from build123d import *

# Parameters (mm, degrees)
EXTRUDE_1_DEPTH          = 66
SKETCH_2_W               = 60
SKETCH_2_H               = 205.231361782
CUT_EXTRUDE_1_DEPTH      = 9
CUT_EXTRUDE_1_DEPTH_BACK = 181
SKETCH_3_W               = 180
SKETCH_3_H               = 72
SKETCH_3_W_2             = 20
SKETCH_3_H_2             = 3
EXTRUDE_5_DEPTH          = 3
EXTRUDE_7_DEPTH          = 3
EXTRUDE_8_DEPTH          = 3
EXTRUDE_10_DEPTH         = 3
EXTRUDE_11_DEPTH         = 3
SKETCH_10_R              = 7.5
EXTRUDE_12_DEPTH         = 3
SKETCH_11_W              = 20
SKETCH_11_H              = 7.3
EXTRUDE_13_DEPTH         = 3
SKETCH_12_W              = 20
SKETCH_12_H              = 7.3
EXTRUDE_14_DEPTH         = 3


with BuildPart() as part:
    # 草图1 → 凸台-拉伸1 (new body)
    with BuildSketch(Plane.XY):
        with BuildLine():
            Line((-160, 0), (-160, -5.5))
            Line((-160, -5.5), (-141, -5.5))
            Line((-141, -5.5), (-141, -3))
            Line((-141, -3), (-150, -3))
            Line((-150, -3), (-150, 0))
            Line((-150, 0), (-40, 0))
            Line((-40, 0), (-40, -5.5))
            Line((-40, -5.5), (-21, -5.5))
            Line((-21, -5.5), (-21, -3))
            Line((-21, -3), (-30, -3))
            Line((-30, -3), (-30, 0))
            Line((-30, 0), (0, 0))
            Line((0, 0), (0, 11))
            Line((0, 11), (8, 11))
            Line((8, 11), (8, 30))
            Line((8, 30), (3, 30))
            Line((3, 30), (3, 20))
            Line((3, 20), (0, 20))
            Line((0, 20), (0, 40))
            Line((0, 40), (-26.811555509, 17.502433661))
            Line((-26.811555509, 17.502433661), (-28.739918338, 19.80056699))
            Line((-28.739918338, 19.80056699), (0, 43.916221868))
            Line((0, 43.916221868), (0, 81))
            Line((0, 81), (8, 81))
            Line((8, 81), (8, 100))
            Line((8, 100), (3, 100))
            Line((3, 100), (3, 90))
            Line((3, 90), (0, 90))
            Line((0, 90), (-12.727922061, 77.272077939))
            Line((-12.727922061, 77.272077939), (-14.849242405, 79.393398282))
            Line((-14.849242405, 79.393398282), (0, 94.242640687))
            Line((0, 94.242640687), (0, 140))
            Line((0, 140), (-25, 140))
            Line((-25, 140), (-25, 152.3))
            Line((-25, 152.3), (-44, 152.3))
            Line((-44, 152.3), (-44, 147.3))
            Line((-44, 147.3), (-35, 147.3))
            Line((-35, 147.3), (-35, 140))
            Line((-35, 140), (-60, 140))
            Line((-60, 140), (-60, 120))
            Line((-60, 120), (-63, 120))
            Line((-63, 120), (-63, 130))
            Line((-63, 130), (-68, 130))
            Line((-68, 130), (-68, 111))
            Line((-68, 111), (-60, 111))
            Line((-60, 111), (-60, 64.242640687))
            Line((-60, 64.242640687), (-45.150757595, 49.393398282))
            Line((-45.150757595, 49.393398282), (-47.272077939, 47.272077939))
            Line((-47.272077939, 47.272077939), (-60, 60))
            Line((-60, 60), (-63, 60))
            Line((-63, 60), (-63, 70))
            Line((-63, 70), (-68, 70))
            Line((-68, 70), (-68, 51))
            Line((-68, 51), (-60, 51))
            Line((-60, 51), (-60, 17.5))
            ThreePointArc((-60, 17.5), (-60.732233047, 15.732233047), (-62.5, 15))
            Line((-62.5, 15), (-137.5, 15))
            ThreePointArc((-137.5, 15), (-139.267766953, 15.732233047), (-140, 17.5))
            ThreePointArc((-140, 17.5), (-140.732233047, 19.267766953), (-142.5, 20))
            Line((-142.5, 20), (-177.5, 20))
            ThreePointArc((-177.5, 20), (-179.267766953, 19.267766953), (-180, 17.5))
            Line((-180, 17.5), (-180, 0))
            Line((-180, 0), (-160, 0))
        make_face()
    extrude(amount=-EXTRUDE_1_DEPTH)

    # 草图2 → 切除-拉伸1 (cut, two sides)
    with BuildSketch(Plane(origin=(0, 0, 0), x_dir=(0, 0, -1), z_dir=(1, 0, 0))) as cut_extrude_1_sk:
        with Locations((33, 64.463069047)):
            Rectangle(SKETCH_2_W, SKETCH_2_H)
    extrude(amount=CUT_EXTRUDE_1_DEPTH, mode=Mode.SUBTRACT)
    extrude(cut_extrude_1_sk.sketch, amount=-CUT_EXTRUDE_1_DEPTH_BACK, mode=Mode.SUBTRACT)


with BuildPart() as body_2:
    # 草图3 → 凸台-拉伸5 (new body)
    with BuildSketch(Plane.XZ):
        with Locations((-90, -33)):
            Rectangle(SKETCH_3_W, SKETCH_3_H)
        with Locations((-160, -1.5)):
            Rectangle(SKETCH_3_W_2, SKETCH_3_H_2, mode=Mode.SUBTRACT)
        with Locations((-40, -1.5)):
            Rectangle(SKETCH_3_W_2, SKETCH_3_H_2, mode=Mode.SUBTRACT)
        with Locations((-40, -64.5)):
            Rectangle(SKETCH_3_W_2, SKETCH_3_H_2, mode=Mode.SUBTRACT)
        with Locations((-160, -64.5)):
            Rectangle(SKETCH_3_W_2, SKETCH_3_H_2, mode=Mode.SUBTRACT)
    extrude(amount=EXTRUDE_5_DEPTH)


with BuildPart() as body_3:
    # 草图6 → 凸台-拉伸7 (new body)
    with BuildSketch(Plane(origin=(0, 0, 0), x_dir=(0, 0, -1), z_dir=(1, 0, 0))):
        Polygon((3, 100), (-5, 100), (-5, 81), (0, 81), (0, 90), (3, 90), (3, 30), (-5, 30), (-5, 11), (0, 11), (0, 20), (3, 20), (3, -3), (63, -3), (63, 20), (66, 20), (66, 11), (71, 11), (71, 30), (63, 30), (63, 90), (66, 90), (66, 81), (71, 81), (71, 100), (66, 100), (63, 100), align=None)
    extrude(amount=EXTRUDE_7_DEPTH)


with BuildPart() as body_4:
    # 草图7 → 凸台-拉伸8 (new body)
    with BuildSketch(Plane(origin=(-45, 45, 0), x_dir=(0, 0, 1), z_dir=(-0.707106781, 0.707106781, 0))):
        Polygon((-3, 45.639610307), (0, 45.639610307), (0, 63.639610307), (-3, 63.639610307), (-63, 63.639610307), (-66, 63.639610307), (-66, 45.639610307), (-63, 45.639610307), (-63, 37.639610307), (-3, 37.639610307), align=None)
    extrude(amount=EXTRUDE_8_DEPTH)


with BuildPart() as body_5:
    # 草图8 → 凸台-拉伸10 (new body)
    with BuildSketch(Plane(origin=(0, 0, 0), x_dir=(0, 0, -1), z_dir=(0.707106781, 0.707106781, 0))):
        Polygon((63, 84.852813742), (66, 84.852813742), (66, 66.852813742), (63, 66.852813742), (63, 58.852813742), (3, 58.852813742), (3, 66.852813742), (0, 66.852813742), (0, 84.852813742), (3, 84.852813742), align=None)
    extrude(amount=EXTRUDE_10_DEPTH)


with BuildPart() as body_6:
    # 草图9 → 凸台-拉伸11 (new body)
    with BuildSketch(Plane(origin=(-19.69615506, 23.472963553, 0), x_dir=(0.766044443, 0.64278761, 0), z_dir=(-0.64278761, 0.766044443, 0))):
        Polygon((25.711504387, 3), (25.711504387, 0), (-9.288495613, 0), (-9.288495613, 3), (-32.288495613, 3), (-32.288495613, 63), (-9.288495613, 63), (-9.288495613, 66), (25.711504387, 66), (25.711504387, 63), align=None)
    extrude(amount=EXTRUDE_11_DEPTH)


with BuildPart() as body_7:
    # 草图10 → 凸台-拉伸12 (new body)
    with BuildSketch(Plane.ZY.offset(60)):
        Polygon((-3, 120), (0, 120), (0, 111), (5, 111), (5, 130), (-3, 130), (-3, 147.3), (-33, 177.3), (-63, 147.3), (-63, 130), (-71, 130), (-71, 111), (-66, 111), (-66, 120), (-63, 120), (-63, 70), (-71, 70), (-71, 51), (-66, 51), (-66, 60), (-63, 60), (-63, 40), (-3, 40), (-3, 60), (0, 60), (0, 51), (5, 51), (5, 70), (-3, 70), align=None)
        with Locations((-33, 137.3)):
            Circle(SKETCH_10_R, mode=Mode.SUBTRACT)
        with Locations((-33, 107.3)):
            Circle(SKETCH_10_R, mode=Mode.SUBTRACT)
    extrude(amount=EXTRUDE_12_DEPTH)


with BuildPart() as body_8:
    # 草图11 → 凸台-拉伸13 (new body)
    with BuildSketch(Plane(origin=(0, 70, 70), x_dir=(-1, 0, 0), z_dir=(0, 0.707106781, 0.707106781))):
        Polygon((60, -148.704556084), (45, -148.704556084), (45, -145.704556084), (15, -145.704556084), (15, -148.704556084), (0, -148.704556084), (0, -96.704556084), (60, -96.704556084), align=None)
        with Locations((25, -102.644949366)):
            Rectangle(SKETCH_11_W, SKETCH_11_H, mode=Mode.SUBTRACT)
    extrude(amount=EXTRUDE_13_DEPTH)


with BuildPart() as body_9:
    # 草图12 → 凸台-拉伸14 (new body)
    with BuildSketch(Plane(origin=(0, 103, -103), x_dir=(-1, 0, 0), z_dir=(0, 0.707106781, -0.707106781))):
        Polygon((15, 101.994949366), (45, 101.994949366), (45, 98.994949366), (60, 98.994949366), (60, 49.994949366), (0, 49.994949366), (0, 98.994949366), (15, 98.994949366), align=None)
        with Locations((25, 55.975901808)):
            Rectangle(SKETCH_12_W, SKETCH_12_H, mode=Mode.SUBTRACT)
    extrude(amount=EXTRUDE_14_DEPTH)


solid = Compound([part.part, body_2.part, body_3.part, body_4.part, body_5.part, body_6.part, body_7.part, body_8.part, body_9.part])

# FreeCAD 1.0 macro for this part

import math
import FreeCAD as App
import Part
import Sketcher
Q = App.Units.Quantity

doc = App.newDocument("Part")
body = doc.addObject("PartDesign::Body", "Body")
body.AllowCompound = True

sketch1 = doc.addObject("Sketcher::SketchObject", "Sketch")
body.addObject(sketch1)
sketch1.AttachmentSupport = (doc.XY_Plane, [""])
sketch1.MapMode = "FlatFace"
sketch1.addGeometry([
    Part.LineSegment(App.Vector(-160, 0, 0), App.Vector(-160, -5.5, 0)),
    Part.LineSegment(App.Vector(-160, -5.5, 0), App.Vector(-141, -5.5, 0)),
    Part.LineSegment(App.Vector(-141, -5.5, 0), App.Vector(-141, -3, 0)),
    Part.LineSegment(App.Vector(-141, -3, 0), App.Vector(-150, -3, 0)),
    Part.LineSegment(App.Vector(-150, -3, 0), App.Vector(-150, 0, 0)),
    Part.LineSegment(App.Vector(-150, 0, 0), App.Vector(-40, 0, 0)),
    Part.LineSegment(App.Vector(-40, 0, 0), App.Vector(-40, -5.5, 0)),
    Part.LineSegment(App.Vector(-40, -5.5, 0), App.Vector(-21, -5.5, 0)),
    Part.LineSegment(App.Vector(-21, -5.5, 0), App.Vector(-21, -3, 0)),
    Part.LineSegment(App.Vector(-21, -3, 0), App.Vector(-30, -3, 0)),
    Part.LineSegment(App.Vector(-30, -3, 0), App.Vector(-30, 0, 0)),
    Part.LineSegment(App.Vector(-30, 0, 0), App.Vector(0, 0, 0)),
    Part.LineSegment(App.Vector(0, 0, 0), App.Vector(0, 11, 0)),
    Part.LineSegment(App.Vector(0, 11, 0), App.Vector(8, 11, 0)),
    Part.LineSegment(App.Vector(8, 11, 0), App.Vector(8, 30, 0)),
    Part.LineSegment(App.Vector(8, 30, 0), App.Vector(3, 30, 0)),
    Part.LineSegment(App.Vector(3, 30, 0), App.Vector(3, 20, 0)),
    Part.LineSegment(App.Vector(3, 20, 0), App.Vector(0, 20, 0)),
    Part.LineSegment(App.Vector(0, 20, 0), App.Vector(0, 40, 0)),
    Part.LineSegment(App.Vector(0, 40, 0), App.Vector(-26.8, 17.5, 0)),
    Part.LineSegment(App.Vector(-26.8, 17.5, 0), App.Vector(-28.7, 19.8, 0)),
    Part.LineSegment(App.Vector(-28.7, 19.8, 0), App.Vector(0, 43.9, 0)),
    Part.LineSegment(App.Vector(0, 43.9, 0), App.Vector(0, 81, 0)),
    Part.LineSegment(App.Vector(0, 81, 0), App.Vector(8, 81, 0)),
    Part.LineSegment(App.Vector(8, 81, 0), App.Vector(8, 100, 0)),
    Part.LineSegment(App.Vector(8, 100, 0), App.Vector(3, 100, 0)),
    Part.LineSegment(App.Vector(3, 100, 0), App.Vector(3, 90, 0)),
    Part.LineSegment(App.Vector(3, 90, 0), App.Vector(0, 90, 0)),
    Part.LineSegment(App.Vector(0, 90, 0), App.Vector(-12.7, 77.3, 0)),
    Part.LineSegment(App.Vector(-12.7, 77.3, 0), App.Vector(-14.8, 79.4, 0)),
    Part.LineSegment(App.Vector(-14.8, 79.4, 0), App.Vector(0, 94.2, 0)),
    Part.LineSegment(App.Vector(0, 94.2, 0), App.Vector(0, 140, 0)),
    Part.LineSegment(App.Vector(0, 140, 0), App.Vector(-25, 140, 0)),
    Part.LineSegment(App.Vector(-25, 140, 0), App.Vector(-25, 152.3, 0)),
    Part.LineSegment(App.Vector(-25, 152.3, 0), App.Vector(-44, 152.3, 0)),
    Part.LineSegment(App.Vector(-44, 152.3, 0), App.Vector(-44, 147.3, 0)),
    Part.LineSegment(App.Vector(-44, 147.3, 0), App.Vector(-35, 147.3, 0)),
    Part.LineSegment(App.Vector(-35, 147.3, 0), App.Vector(-35, 140, 0)),
    Part.LineSegment(App.Vector(-35, 140, 0), App.Vector(-60, 140, 0)),
    Part.LineSegment(App.Vector(-60, 140, 0), App.Vector(-60, 120, 0)),
    Part.LineSegment(App.Vector(-60, 120, 0), App.Vector(-63, 120, 0)),
    Part.LineSegment(App.Vector(-63, 120, 0), App.Vector(-63, 130, 0)),
    Part.LineSegment(App.Vector(-63, 130, 0), App.Vector(-68, 130, 0)),
    Part.LineSegment(App.Vector(-68, 130, 0), App.Vector(-68, 111, 0)),
    Part.LineSegment(App.Vector(-68, 111, 0), App.Vector(-60, 111, 0)),
    Part.LineSegment(App.Vector(-60, 111, 0), App.Vector(-60, 64.2, 0)),
    Part.LineSegment(App.Vector(-60, 64.2, 0), App.Vector(-45.2, 49.4, 0)),
    Part.LineSegment(App.Vector(-45.2, 49.4, 0), App.Vector(-47.3, 47.3, 0)),
    Part.LineSegment(App.Vector(-47.3, 47.3, 0), App.Vector(-60, 60, 0)),
    Part.LineSegment(App.Vector(-60, 60, 0), App.Vector(-63, 60, 0)),
    Part.LineSegment(App.Vector(-63, 60, 0), App.Vector(-63, 70, 0)),
    Part.LineSegment(App.Vector(-63, 70, 0), App.Vector(-68, 70, 0)),
    Part.LineSegment(App.Vector(-68, 70, 0), App.Vector(-68, 51, 0)),
    Part.LineSegment(App.Vector(-68, 51, 0), App.Vector(-60, 51, 0)),
    Part.LineSegment(App.Vector(-60, 51, 0), App.Vector(-60, 17.5, 0)),
    Part.ArcOfCircle(Part.Circle(App.Vector(-62.5, 17.5, 0), App.Vector(0, 0, 1), 2.5), math.radians(-90), math.radians(0)),
    Part.LineSegment(App.Vector(-62.5, 15, 0), App.Vector(-137.5, 15, 0)),
    Part.ArcOfCircle(Part.Circle(App.Vector(-137.5, 17.5, 0), App.Vector(0, 0, 1), 2.5), math.radians(180), math.radians(270)),
    Part.ArcOfCircle(Part.Circle(App.Vector(-142.5, 17.5, 0), App.Vector(0, 0, 1), 2.5), math.radians(0), math.radians(90)),
    Part.LineSegment(App.Vector(-142.5, 20, 0), App.Vector(-177.5, 20, 0)),
    Part.ArcOfCircle(Part.Circle(App.Vector(-177.5, 17.5, 0), App.Vector(0, 0, 1), 2.5), math.radians(90), math.radians(180)),
    Part.LineSegment(App.Vector(-180, 17.5, 0), App.Vector(-180, 0, 0)),
    Part.LineSegment(App.Vector(-180, 0, 0), App.Vector(-160, 0, 0)),
], False)
sketch1.addConstraint([
    Sketcher.Constraint("Coincident", 0, 2, 1, 1),
    Sketcher.Constraint("Coincident", 1, 2, 2, 1),
    Sketcher.Constraint("Coincident", 2, 2, 3, 1),
    Sketcher.Constraint("Coincident", 3, 2, 4, 1),
    Sketcher.Constraint("Coincident", 4, 2, 5, 1),
    Sketcher.Constraint("Coincident", 5, 2, 6, 1),
    Sketcher.Constraint("Coincident", 6, 2, 7, 1),
    Sketcher.Constraint("Coincident", 7, 2, 8, 1),
    Sketcher.Constraint("Coincident", 8, 2, 9, 1),
    Sketcher.Constraint("Coincident", 9, 2, 10, 1),
    Sketcher.Constraint("Coincident", 10, 2, 11, 1),
    Sketcher.Constraint("Coincident", 11, 2, 12, 1),
    Sketcher.Constraint("Coincident", 12, 2, 13, 1),
    Sketcher.Constraint("Coincident", 13, 2, 14, 1),
    Sketcher.Constraint("Coincident", 14, 2, 15, 1),
    Sketcher.Constraint("Coincident", 15, 2, 16, 1),
    Sketcher.Constraint("Coincident", 16, 2, 17, 1),
    Sketcher.Constraint("Coincident", 17, 2, 18, 1),
    Sketcher.Constraint("Coincident", 18, 2, 19, 1),
    Sketcher.Constraint("Coincident", 19, 2, 20, 1),
    Sketcher.Constraint("Coincident", 20, 2, 21, 1),
    Sketcher.Constraint("Coincident", 21, 2, 22, 1),
    Sketcher.Constraint("Coincident", 22, 2, 23, 1),
    Sketcher.Constraint("Coincident", 23, 2, 24, 1),
    Sketcher.Constraint("Coincident", 24, 2, 25, 1),
    Sketcher.Constraint("Coincident", 25, 2, 26, 1),
    Sketcher.Constraint("Coincident", 26, 2, 27, 1),
    Sketcher.Constraint("Coincident", 27, 2, 28, 1),
    Sketcher.Constraint("Coincident", 28, 2, 29, 1),
    Sketcher.Constraint("Coincident", 29, 2, 30, 1),
    Sketcher.Constraint("Coincident", 30, 2, 31, 1),
    Sketcher.Constraint("Coincident", 31, 2, 32, 1),
    Sketcher.Constraint("Coincident", 32, 2, 33, 1),
    Sketcher.Constraint("Coincident", 33, 2, 34, 1),
    Sketcher.Constraint("Coincident", 34, 2, 35, 1),
    Sketcher.Constraint("Coincident", 35, 2, 36, 1),
    Sketcher.Constraint("Coincident", 36, 2, 37, 1),
    Sketcher.Constraint("Coincident", 37, 2, 38, 1),
    Sketcher.Constraint("Coincident", 38, 2, 39, 1),
    Sketcher.Constraint("Coincident", 39, 2, 40, 1),
    Sketcher.Constraint("Coincident", 40, 2, 41, 1),
    Sketcher.Constraint("Coincident", 41, 2, 42, 1),
    Sketcher.Constraint("Coincident", 42, 2, 43, 1),
    Sketcher.Constraint("Coincident", 43, 2, 44, 1),
    Sketcher.Constraint("Coincident", 44, 2, 45, 1),
    Sketcher.Constraint("Coincident", 45, 2, 46, 1),
    Sketcher.Constraint("Coincident", 46, 2, 47, 1),
    Sketcher.Constraint("Coincident", 47, 2, 48, 1),
    Sketcher.Constraint("Coincident", 48, 2, 49, 1),
    Sketcher.Constraint("Coincident", 49, 2, 50, 1),
    Sketcher.Constraint("Coincident", 50, 2, 51, 1),
    Sketcher.Constraint("Coincident", 51, 2, 52, 1),
    Sketcher.Constraint("Coincident", 52, 2, 53, 1),
    Sketcher.Constraint("Coincident", 53, 2, 54, 1),
    Sketcher.Constraint("Tangent", 54, 2, 55, 2),
    Sketcher.Constraint("Tangent", 55, 1, 56, 1),
    Sketcher.Constraint("Tangent", 56, 2, 57, 2),
    Sketcher.Constraint("Tangent", 57, 1, 58, 1),
    Sketcher.Constraint("Tangent", 58, 2, 59, 1),
    Sketcher.Constraint("Tangent", 59, 2, 60, 1),
    Sketcher.Constraint("Tangent", 60, 2, 61, 1),
    Sketcher.Constraint("Coincident", 61, 2, 62, 1),
    Sketcher.Constraint("Coincident", 62, 2, 0, 1),
    Sketcher.Constraint("Vertical", 0),
    Sketcher.Constraint("Horizontal", 1),
    Sketcher.Constraint("Vertical", 2),
    Sketcher.Constraint("Horizontal", 3),
    Sketcher.Constraint("Vertical", 4),
    Sketcher.Constraint("Horizontal", 5),
    Sketcher.Constraint("Vertical", 6),
    Sketcher.Constraint("Horizontal", 7),
    Sketcher.Constraint("Vertical", 8),
    Sketcher.Constraint("Horizontal", 9),
    Sketcher.Constraint("Vertical", 10),
    Sketcher.Constraint("Horizontal", 11),
    Sketcher.Constraint("Vertical", 12),
    Sketcher.Constraint("Horizontal", 13),
    Sketcher.Constraint("Vertical", 14),
    Sketcher.Constraint("Horizontal", 15),
    Sketcher.Constraint("Vertical", 16),
    Sketcher.Constraint("Horizontal", 17),
    Sketcher.Constraint("Vertical", 18),
    Sketcher.Constraint("Vertical", 22),
    Sketcher.Constraint("Horizontal", 23),
    Sketcher.Constraint("Vertical", 24),
    Sketcher.Constraint("Horizontal", 25),
    Sketcher.Constraint("Vertical", 26),
    Sketcher.Constraint("Horizontal", 27),
    Sketcher.Constraint("Vertical", 31),
    Sketcher.Constraint("Horizontal", 32),
    Sketcher.Constraint("Vertical", 33),
    Sketcher.Constraint("Horizontal", 34),
    Sketcher.Constraint("Vertical", 35),
    Sketcher.Constraint("Horizontal", 36),
    Sketcher.Constraint("Vertical", 37),
    Sketcher.Constraint("Horizontal", 38),
    Sketcher.Constraint("Vertical", 39),
    Sketcher.Constraint("Horizontal", 40),
    Sketcher.Constraint("Vertical", 41),
    Sketcher.Constraint("Horizontal", 42),
    Sketcher.Constraint("Vertical", 43),
    Sketcher.Constraint("Horizontal", 44),
    Sketcher.Constraint("Vertical", 45),
    Sketcher.Constraint("Horizontal", 49),
    Sketcher.Constraint("Vertical", 50),
    Sketcher.Constraint("Horizontal", 51),
    Sketcher.Constraint("Vertical", 52),
    Sketcher.Constraint("Horizontal", 53),
    Sketcher.Constraint("Vertical", 54),
    Sketcher.Constraint("Horizontal", 56),
    Sketcher.Constraint("Horizontal", 59),
    Sketcher.Constraint("Vertical", 61),
    Sketcher.Constraint("Horizontal", 62),
    Sketcher.Constraint("Coincident", 11, 2, -1, 1),
    Sketcher.Constraint("Equal", 55, 57),
    Sketcher.Constraint("Equal", 57, 58),
    Sketcher.Constraint("Equal", 58, 60),
    Sketcher.Constraint("PointOnObject", 4, 2, -1),
    Sketcher.Constraint("PointOnObject", 17, 2, -2),
    Sketcher.Constraint("PointOnObject", 21, 2, -2),
    Sketcher.Constraint("PointOnObject", 27, 2, -2),
    Sketcher.Constraint("PointOnObject", 30, 2, -2),
    Sketcher.Constraint("PointOnObject", 61, 2, -1),
    Sketcher.Constraint("Perpendicular", 19, 20),
    Sketcher.Constraint("Perpendicular", 20, 21),
    Sketcher.Constraint("Perpendicular", 28, 29),
    Sketcher.Constraint("Perpendicular", 29, 30),
    Sketcher.Constraint("Perpendicular", 30, 46),
    Sketcher.Constraint("Perpendicular", 46, 47),
    Sketcher.Constraint("Perpendicular", 47, 48),
    Sketcher.Constraint("Horizontal", 57, 3, 58, 3),
    Sketcher.Constraint("Horizontal", 1, 2, 6, 2),
    Sketcher.Constraint("Horizontal", 3, 2, 8, 2),
    Sketcher.Constraint("Horizontal", 32, 2, 37, 2),
    Sketcher.Constraint("Horizontal", 17, 2, 58, 2),
    Sketcher.Constraint("Vertical", 14, 2, 23, 2),
    Sketcher.Constraint("Vertical", 16, 2, 25, 2),
    Sketcher.Constraint("Vertical", 39, 2, 44, 2),
    Sketcher.Constraint("Vertical", 45, 2, 48, 2),
    Sketcher.Constraint("Vertical", 41, 2, 49, 2),
    Sketcher.Constraint("Vertical", 43, 2, 51, 2),
    Sketcher.Constraint("Vertical", 48, 2, 53, 2),
    Sketcher.Constraint("Equal", 1, 7),
    Sketcher.Constraint("Equal", 3, 9),
    Sketcher.Constraint("Equal", 7, 34),
    Sketcher.Constraint("Equal", 9, 36),
    Sketcher.Constraint("Equal", 32, 38),
    Sketcher.Constraint("Equal", 27, 40),
    Sketcher.Constraint("Equal", 25, 42),
    Sketcher.Constraint("Equal", 49, 4),
    Sketcher.Constraint("Equal", 34, 14),
    Sketcher.Constraint("Equal", 62, 18),
    Sketcher.Constraint("Equal", 14, 24),
    Sketcher.Constraint("Equal", 16, 26),
    Sketcher.Constraint("Equal", 51, 35),
    Sketcher.Constraint("Equal", 18, 39),
    Sketcher.Constraint("Equal", 26, 41),
    Sketcher.Constraint("Equal", 24, 43),
    Sketcher.Constraint("Equal", 41, 50),
    Sketcher.Constraint("Equal", 43, 52),
    Sketcher.Constraint("Equal", 20, 29),
    Sketcher.Constraint("Equal", 30, 46),
    Sketcher.Constraint("Equal", 29, 47),
    Sketcher.Constraint("Equal", 28, 48),
    Sketcher.Constraint("Radius", 55, 2.5),
    Sketcher.Constraint("DistanceX", 1, 1, 1, 2, 19.0),
    Sketcher.Constraint("DistanceX", 3, 2, 3, 1, 9.0),
    Sketcher.Constraint("DistanceX", 5, 1, 5, 2, 110.0),
    Sketcher.Constraint("DistanceX", 11, 1, 11, 2, 30.0),
    Sketcher.Constraint("DistanceX", 13, 1, 13, 2, 8.0),
    Sketcher.Constraint("DistanceX", 15, 2, 15, 1, 5.0),
    Sketcher.Constraint("DistanceX", 32, 2, 32, 1, 25.0),
    Sketcher.Constraint("DistanceX", 56, 2, 56, 1, 75.0),
    Sketcher.Constraint("DistanceX", 59, 2, 59, 1, 35.0),
    Sketcher.Constraint("DistanceY", 12, 1, 12, 2, 11.0),
    Sketcher.Constraint("DistanceY", 16, 2, 16, 1, 10.0),
    Sketcher.Constraint("Angle", 19, Q("-140 deg")),
    Sketcher.Constraint("Distance", 19, 35.0),
    Sketcher.Constraint("Distance", 20, 3.0),
    Sketcher.Constraint("Distance", 28, 18.0),
    Sketcher.Constraint("DistanceY", 0, 2, 0, 1, 5.5),
    Sketcher.Constraint("DistanceY", 33, 1, 33, 2, 12.3),
    Sketcher.Constraint("DistanceY", 54, 2, 54, 1, 33.5),
    Sketcher.Constraint("DistanceY", -1, 1, 22, 2, 81.0),
    Sketcher.Constraint("DistanceY", -1, 1, 31, 2, 140.0),
])
pad1 = doc.addObject("PartDesign::Pad", "Pad")
body.addObject(pad1)
pad1.Profile = sketch1
pad1.Length = 66
pad1.Reversed = True

sketch2 = doc.addObject("Sketcher::SketchObject", "Sketch001")
body.addObject(sketch2)
sketch2.AttachmentSupport = (doc.YZ_Plane, [""])
sketch2.MapMode = "FlatFace"
sketch2.addGeometry([
    Part.LineSegment(App.Vector(167, -3, 0), App.Vector(-38, -3, 0)),
    Part.LineSegment(App.Vector(-38, -3, 0), App.Vector(-38, -63, 0)),
    Part.LineSegment(App.Vector(-38, -63, 0), App.Vector(167, -63, 0)),
    Part.LineSegment(App.Vector(167, -63, 0), App.Vector(167, -3, 0)),
], False)
sketch2.addConstraint([
    Sketcher.Constraint("Coincident", 0, 2, 1, 1),
    Sketcher.Constraint("Coincident", 1, 2, 2, 1),
    Sketcher.Constraint("Coincident", 2, 2, 3, 1),
    Sketcher.Constraint("Coincident", 3, 2, 0, 1),
    Sketcher.Constraint("Horizontal", 0),
    Sketcher.Constraint("Vertical", 1),
    Sketcher.Constraint("Horizontal", 2),
    Sketcher.Constraint("Vertical", 3),
    Sketcher.Constraint("DistanceY", 1, 2, 1, 1, 60.0),
    Sketcher.Constraint("DistanceY", 0, 2, -1, 1, 3.0),
    Sketcher.Constraint("DistanceX", 0, 2, 0, 1, 205.231362),
    Sketcher.Constraint("DistanceX", 0, 2, -1, 1, 38.152612),
])
pocket1 = doc.addObject("PartDesign::Pocket", "Pocket")
body.addObject(pocket1)
pocket1.Profile = sketch2
pocket1.Type = "ThroughAll"
pocket1.Midplane = True
body2 = doc.addObject("PartDesign::Body", "Body001")

sketch3 = doc.addObject("Sketcher::SketchObject", "Sketch002")
body2.addObject(sketch3)
sketch3.AttachmentSupport = (doc.getObject("XZ_Plane001"), [""])
sketch3.MapMode = "FlatFace"
sketch3.addGeometry([
    Part.LineSegment(App.Vector(-180, 3, 0), App.Vector(-180, -69, 0)),
    Part.LineSegment(App.Vector(-180, -69, 0), App.Vector(0, -69, 0)),
    Part.LineSegment(App.Vector(0, -69, 0), App.Vector(0, 3, 0)),
    Part.LineSegment(App.Vector(0, 3, 0), App.Vector(-180, 3, 0)),
    Part.LineSegment(App.Vector(-150, -66, 0), App.Vector(-170, -66, 0)),
    Part.LineSegment(App.Vector(-170, -66, 0), App.Vector(-170, -63, 0)),
    Part.LineSegment(App.Vector(-170, -63, 0), App.Vector(-150, -63, 0)),
    Part.LineSegment(App.Vector(-150, -63, 0), App.Vector(-150, -66, 0)),
    Part.LineSegment(App.Vector(-30, -66, 0), App.Vector(-50, -66, 0)),
    Part.LineSegment(App.Vector(-50, -66, 0), App.Vector(-50, -63, 0)),
    Part.LineSegment(App.Vector(-50, -63, 0), App.Vector(-30, -63, 0)),
    Part.LineSegment(App.Vector(-30, -63, 0), App.Vector(-30, -66, 0)),
    Part.LineSegment(App.Vector(-150, -3, 0), App.Vector(-170, -3, 0)),
    Part.LineSegment(App.Vector(-170, -3, 0), App.Vector(-170, 0, 0)),
    Part.LineSegment(App.Vector(-170, 0, 0), App.Vector(-150, 0, 0)),
    Part.LineSegment(App.Vector(-150, 0, 0), App.Vector(-150, -3, 0)),
    Part.LineSegment(App.Vector(-30, -3, 0), App.Vector(-50, -3, 0)),
    Part.LineSegment(App.Vector(-50, -3, 0), App.Vector(-50, 0, 0)),
    Part.LineSegment(App.Vector(-50, 0, 0), App.Vector(-30, 0, 0)),
    Part.LineSegment(App.Vector(-30, 0, 0), App.Vector(-30, -3, 0)),
], False)
sketch3.addConstraint([
    Sketcher.Constraint("Coincident", 0, 2, 1, 1),
    Sketcher.Constraint("Coincident", 1, 2, 2, 1),
    Sketcher.Constraint("Coincident", 2, 2, 3, 1),
    Sketcher.Constraint("Coincident", 3, 2, 0, 1),
    Sketcher.Constraint("Coincident", 4, 2, 5, 1),
    Sketcher.Constraint("Coincident", 5, 2, 6, 1),
    Sketcher.Constraint("Coincident", 6, 2, 7, 1),
    Sketcher.Constraint("Coincident", 7, 2, 4, 1),
    Sketcher.Constraint("Coincident", 8, 2, 9, 1),
    Sketcher.Constraint("Coincident", 9, 2, 10, 1),
    Sketcher.Constraint("Coincident", 10, 2, 11, 1),
    Sketcher.Constraint("Coincident", 11, 2, 8, 1),
    Sketcher.Constraint("Coincident", 12, 2, 13, 1),
    Sketcher.Constraint("Coincident", 13, 2, 14, 1),
    Sketcher.Constraint("Coincident", 14, 2, 15, 1),
    Sketcher.Constraint("Coincident", 15, 2, 12, 1),
    Sketcher.Constraint("Coincident", 16, 2, 17, 1),
    Sketcher.Constraint("Coincident", 17, 2, 18, 1),
    Sketcher.Constraint("Coincident", 18, 2, 19, 1),
    Sketcher.Constraint("Coincident", 19, 2, 16, 1),
    Sketcher.Constraint("Vertical", 0),
    Sketcher.Constraint("Horizontal", 1),
    Sketcher.Constraint("Vertical", 2),
    Sketcher.Constraint("Horizontal", 3),
    Sketcher.Constraint("Horizontal", 4),
    Sketcher.Constraint("Vertical", 5),
    Sketcher.Constraint("Horizontal", 6),
    Sketcher.Constraint("Vertical", 7),
    Sketcher.Constraint("Horizontal", 8),
    Sketcher.Constraint("Vertical", 9),
    Sketcher.Constraint("Horizontal", 10),
    Sketcher.Constraint("Vertical", 11),
    Sketcher.Constraint("Horizontal", 12),
    Sketcher.Constraint("Vertical", 13),
    Sketcher.Constraint("Horizontal", 14),
    Sketcher.Constraint("Vertical", 15),
    Sketcher.Constraint("Horizontal", 16),
    Sketcher.Constraint("Vertical", 17),
    Sketcher.Constraint("Horizontal", 18),
    Sketcher.Constraint("Vertical", 19),
    Sketcher.Constraint("PointOnObject", 1, 2, -2),
    Sketcher.Constraint("PointOnObject", 13, 2, -1),
    Sketcher.Constraint("PointOnObject", 17, 2, -1),
    Sketcher.Constraint("Horizontal", 7, 2, 8, 2),
    Sketcher.Constraint("Horizontal", 6, 2, 9, 2),
    Sketcher.Constraint("Horizontal", 15, 2, 16, 2),
    Sketcher.Constraint("Vertical", 5, 2, 12, 2),
    Sketcher.Constraint("Vertical", 7, 2, 14, 2),
    Sketcher.Constraint("Vertical", 9, 2, 16, 2),
    Sketcher.Constraint("Vertical", 11, 2, 18, 2),
    Sketcher.Constraint("Equal", 6, 8),
    Sketcher.Constraint("Equal", 11, 13),
    Sketcher.Constraint("DistanceX", 1, 1, 1, 2, 180.0),
    Sketcher.Constraint("DistanceX", 4, 2, 4, 1, 20.0),
    Sketcher.Constraint("DistanceY", 0, 2, 0, 1, 72.0),
    Sketcher.Constraint("DistanceY", 5, 1, 5, 2, 3.0),
    Sketcher.Constraint("DistanceY", 0, 2, -1, 1, 69.0),
    Sketcher.Constraint("DistanceX", 4, 2, -1, 1, 170.0),
    Sketcher.Constraint("DistanceY", 4, 2, -1, 1, 66.0),
    Sketcher.Constraint("DistanceX", 8, 2, -1, 1, 50.0),
])
pad2 = doc.addObject("PartDesign::Pad", "Pad001")
body2.addObject(pad2)
pad2.Profile = sketch3
pad2.Length = 3
body3 = doc.addObject("PartDesign::Body", "Body002")

sketch4 = doc.addObject("Sketcher::SketchObject", "Sketch003")
body3.addObject(sketch4)
sketch4.AttachmentSupport = (doc.getObject("YZ_Plane002"), [""])
sketch4.MapMode = "FlatFace"
sketch4.addGeometry([
    Part.LineSegment(App.Vector(100, 5, 0), App.Vector(81, 5, 0)),
    Part.LineSegment(App.Vector(81, 5, 0), App.Vector(81, 0, 0)),
    Part.LineSegment(App.Vector(81, 0, 0), App.Vector(90, 0, 0)),
    Part.LineSegment(App.Vector(90, 0, 0), App.Vector(90, -3, 0)),
    Part.LineSegment(App.Vector(90, -3, 0), App.Vector(30, -3, 0)),
    Part.LineSegment(App.Vector(30, -3, 0), App.Vector(30, 5, 0)),
    Part.LineSegment(App.Vector(30, 5, 0), App.Vector(11, 5, 0)),
    Part.LineSegment(App.Vector(11, 5, 0), App.Vector(11, 0, 0)),
    Part.LineSegment(App.Vector(11, 0, 0), App.Vector(20, 0, 0)),
    Part.LineSegment(App.Vector(20, 0, 0), App.Vector(20, -3, 0)),
    Part.LineSegment(App.Vector(20, -3, 0), App.Vector(-3, -3, 0)),
    Part.LineSegment(App.Vector(-3, -3, 0), App.Vector(-3, -63, 0)),
    Part.LineSegment(App.Vector(-3, -63, 0), App.Vector(20, -63, 0)),
    Part.LineSegment(App.Vector(20, -63, 0), App.Vector(20, -66, 0)),
    Part.LineSegment(App.Vector(20, -66, 0), App.Vector(11, -66, 0)),
    Part.LineSegment(App.Vector(11, -66, 0), App.Vector(11, -71, 0)),
    Part.LineSegment(App.Vector(11, -71, 0), App.Vector(30, -71, 0)),
    Part.LineSegment(App.Vector(30, -71, 0), App.Vector(30, -63, 0)),
    Part.LineSegment(App.Vector(30, -63, 0), App.Vector(90, -63, 0)),
    Part.LineSegment(App.Vector(90, -63, 0), App.Vector(90, -66, 0)),
    Part.LineSegment(App.Vector(90, -66, 0), App.Vector(81, -66, 0)),
    Part.LineSegment(App.Vector(81, -66, 0), App.Vector(81, -71, 0)),
    Part.LineSegment(App.Vector(81, -71, 0), App.Vector(100, -71, 0)),
    Part.LineSegment(App.Vector(100, -71, 0), App.Vector(100, 5, 0)),
], False)
sketch4.addConstraint([
    Sketcher.Constraint("Coincident", 0, 2, 1, 1),
    Sketcher.Constraint("Coincident", 1, 2, 2, 1),
    Sketcher.Constraint("Coincident", 2, 2, 3, 1),
    Sketcher.Constraint("Coincident", 3, 2, 4, 1),
    Sketcher.Constraint("Coincident", 4, 2, 5, 1),
    Sketcher.Constraint("Coincident", 5, 2, 6, 1),
    Sketcher.Constraint("Coincident", 6, 2, 7, 1),
    Sketcher.Constraint("Coincident", 7, 2, 8, 1),
    Sketcher.Constraint("Coincident", 8, 2, 9, 1),
    Sketcher.Constraint("Coincident", 9, 2, 10, 1),
    Sketcher.Constraint("Coincident", 10, 2, 11, 1),
    Sketcher.Constraint("Coincident", 11, 2, 12, 1),
    Sketcher.Constraint("Coincident", 12, 2, 13, 1),
    Sketcher.Constraint("Coincident", 13, 2, 14, 1),
    Sketcher.Constraint("Coincident", 14, 2, 15, 1),
    Sketcher.Constraint("Coincident", 15, 2, 16, 1),
    Sketcher.Constraint("Coincident", 16, 2, 17, 1),
    Sketcher.Constraint("Coincident", 17, 2, 18, 1),
    Sketcher.Constraint("Coincident", 18, 2, 19, 1),
    Sketcher.Constraint("Coincident", 19, 2, 20, 1),
    Sketcher.Constraint("Coincident", 20, 2, 21, 1),
    Sketcher.Constraint("Coincident", 21, 2, 22, 1),
    Sketcher.Constraint("Coincident", 22, 2, 23, 1),
    Sketcher.Constraint("Coincident", 23, 2, 0, 1),
    Sketcher.Constraint("Horizontal", 0),
    Sketcher.Constraint("Vertical", 1),
    Sketcher.Constraint("Horizontal", 2),
    Sketcher.Constraint("Vertical", 3),
    Sketcher.Constraint("Horizontal", 4),
    Sketcher.Constraint("Vertical", 5),
    Sketcher.Constraint("Horizontal", 6),
    Sketcher.Constraint("Vertical", 7),
    Sketcher.Constraint("Horizontal", 8),
    Sketcher.Constraint("Vertical", 9),
    Sketcher.Constraint("Horizontal", 10),
    Sketcher.Constraint("Vertical", 11),
    Sketcher.Constraint("Horizontal", 12),
    Sketcher.Constraint("Vertical", 13),
    Sketcher.Constraint("Horizontal", 14),
    Sketcher.Constraint("Vertical", 15),
    Sketcher.Constraint("Horizontal", 16),
    Sketcher.Constraint("Vertical", 17),
    Sketcher.Constraint("Horizontal", 18),
    Sketcher.Constraint("Vertical", 19),
    Sketcher.Constraint("Horizontal", 20),
    Sketcher.Constraint("Vertical", 21),
    Sketcher.Constraint("Horizontal", 22),
    Sketcher.Constraint("Vertical", 23),
    Sketcher.Constraint("PointOnObject", 1, 2, -1),
    Sketcher.Constraint("PointOnObject", 7, 2, -1),
    Sketcher.Constraint("Horizontal", 0, 2, 5, 2),
    Sketcher.Constraint("Horizontal", 4, 2, 9, 2),
    Sketcher.Constraint("Horizontal", 12, 2, 17, 2),
    Sketcher.Constraint("Horizontal", 14, 2, 19, 2),
    Sketcher.Constraint("Horizontal", 16, 2, 21, 2),
    Sketcher.Constraint("Vertical", 9, 2, 12, 2),
    Sketcher.Constraint("Vertical", 7, 2, 14, 2),
    Sketcher.Constraint("Vertical", 5, 2, 16, 2),
    Sketcher.Constraint("Vertical", 3, 2, 18, 2),
    Sketcher.Constraint("Vertical", 1, 2, 20, 2),
    Sketcher.Constraint("Equal", 0, 6),
    Sketcher.Constraint("Equal", 2, 8),
    Sketcher.Constraint("Equal", 18, 11),
    Sketcher.Constraint("Equal", 9, 13),
    Sketcher.Constraint("Equal", 7, 15),
    Sketcher.Constraint("DistanceX", 0, 2, 0, 1, 19.0),
    Sketcher.Constraint("DistanceX", 2, 1, 2, 2, 9.0),
    Sketcher.Constraint("DistanceX", 4, 2, 4, 1, 60.0),
    Sketcher.Constraint("DistanceX", 10, 2, 10, 1, 23.0),
    Sketcher.Constraint("DistanceY", 1, 2, 1, 1, 5.0),
    Sketcher.Constraint("DistanceY", 3, 2, 3, 1, 3.0),
    Sketcher.Constraint("DistanceX", -1, 1, 0, 2, 81.0),
])
pad3 = doc.addObject("PartDesign::Pad", "Pad002")
body3.addObject(pad3)
pad3.Profile = sketch4
pad3.Length = 3
body4 = doc.addObject("PartDesign::Body", "Body003")

sketch5 = doc.addObject("Sketcher::SketchObject", "Sketch004")
body4.addObject(sketch5)
sketch5.Placement = App.Placement(App.Vector(-45, 45, 0), App.Rotation(App.Vector(0, 0, 1), App.Vector(0.707106781, 0.707106781, 0), App.Vector(-0.707106781, 0.707106781, 0), "ZXY"))
sketch5.addGeometry([
    Part.LineSegment(App.Vector(-3, 45.6, 0), App.Vector(0, 45.6, 0)),
    Part.LineSegment(App.Vector(0, 45.6, 0), App.Vector(0, 63.6, 0)),
    Part.LineSegment(App.Vector(0, 63.6, 0), App.Vector(-66, 63.6, 0)),
    Part.LineSegment(App.Vector(-66, 63.6, 0), App.Vector(-66, 45.6, 0)),
    Part.LineSegment(App.Vector(-66, 45.6, 0), App.Vector(-63, 45.6, 0)),
    Part.LineSegment(App.Vector(-63, 45.6, 0), App.Vector(-63, 37.6, 0)),
    Part.LineSegment(App.Vector(-63, 37.6, 0), App.Vector(-3, 37.6, 0)),
    Part.LineSegment(App.Vector(-3, 37.6, 0), App.Vector(-3, 45.6, 0)),
], False)
sketch5.addConstraint([
    Sketcher.Constraint("Coincident", 0, 2, 1, 1),
    Sketcher.Constraint("Coincident", 1, 2, 2, 1),
    Sketcher.Constraint("Coincident", 2, 2, 3, 1),
    Sketcher.Constraint("Coincident", 3, 2, 4, 1),
    Sketcher.Constraint("Coincident", 4, 2, 5, 1),
    Sketcher.Constraint("Coincident", 5, 2, 6, 1),
    Sketcher.Constraint("Coincident", 6, 2, 7, 1),
    Sketcher.Constraint("Coincident", 7, 2, 0, 1),
    Sketcher.Constraint("Horizontal", 0),
    Sketcher.Constraint("Vertical", 1),
    Sketcher.Constraint("Horizontal", 2),
    Sketcher.Constraint("Vertical", 3),
    Sketcher.Constraint("Horizontal", 4),
    Sketcher.Constraint("Vertical", 5),
    Sketcher.Constraint("Horizontal", 6),
    Sketcher.Constraint("Vertical", 7),
    Sketcher.Constraint("PointOnObject", 0, 2, -2),
    Sketcher.Constraint("Horizontal", 0, 2, 3, 2),
    Sketcher.Constraint("Equal", 0, 4),
    Sketcher.Constraint("DistanceX", 0, 1, 0, 2, 3.0),
    Sketcher.Constraint("DistanceX", 2, 2, 2, 1, 66.0),
    Sketcher.Constraint("DistanceY", 1, 1, 1, 2, 18.0),
    Sketcher.Constraint("DistanceY", 5, 2, 5, 1, 8.0),
    Sketcher.Constraint("DistanceY", -1, 1, 0, 2, 45.63961),
])
pad4 = doc.addObject("PartDesign::Pad", "Pad003")
body4.addObject(pad4)
pad4.Profile = sketch5
pad4.Length = 3
body5 = doc.addObject("PartDesign::Body", "Body004")

sketch6 = doc.addObject("Sketcher::SketchObject", "Sketch005")
body5.addObject(sketch6)
sketch6.Placement = App.Placement(App.Vector(0, 0, 0), App.Rotation(App.Vector(0, 0, -1), App.Vector(-0.707106781, 0.707106781, 0), App.Vector(0.707106781, 0.707106781, 0), "ZXY"))
sketch6.addGeometry([
    Part.LineSegment(App.Vector(66, 84.9, 0), App.Vector(0, 84.9, 0)),
    Part.LineSegment(App.Vector(0, 84.9, 0), App.Vector(0, 66.9, 0)),
    Part.LineSegment(App.Vector(0, 66.9, 0), App.Vector(3, 66.9, 0)),
    Part.LineSegment(App.Vector(3, 66.9, 0), App.Vector(3, 58.9, 0)),
    Part.LineSegment(App.Vector(3, 58.9, 0), App.Vector(63, 58.9, 0)),
    Part.LineSegment(App.Vector(63, 58.9, 0), App.Vector(63, 66.9, 0)),
    Part.LineSegment(App.Vector(63, 66.9, 0), App.Vector(66, 66.9, 0)),
    Part.LineSegment(App.Vector(66, 66.9, 0), App.Vector(66, 84.9, 0)),
], False)
sketch6.addConstraint([
    Sketcher.Constraint("Coincident", 0, 2, 1, 1),
    Sketcher.Constraint("Coincident", 1, 2, 2, 1),
    Sketcher.Constraint("Coincident", 2, 2, 3, 1),
    Sketcher.Constraint("Coincident", 3, 2, 4, 1),
    Sketcher.Constraint("Coincident", 4, 2, 5, 1),
    Sketcher.Constraint("Coincident", 5, 2, 6, 1),
    Sketcher.Constraint("Coincident", 6, 2, 7, 1),
    Sketcher.Constraint("Coincident", 7, 2, 0, 1),
    Sketcher.Constraint("Horizontal", 0),
    Sketcher.Constraint("Vertical", 1),
    Sketcher.Constraint("Horizontal", 2),
    Sketcher.Constraint("Vertical", 3),
    Sketcher.Constraint("Horizontal", 4),
    Sketcher.Constraint("Vertical", 5),
    Sketcher.Constraint("Horizontal", 6),
    Sketcher.Constraint("Vertical", 7),
    Sketcher.Constraint("PointOnObject", 0, 2, -2),
    Sketcher.Constraint("Horizontal", 2, 2, 5, 2),
    Sketcher.Constraint("Equal", 2, 6),
    Sketcher.Constraint("DistanceX", 0, 2, 0, 1, 66.0),
    Sketcher.Constraint("DistanceX", 2, 1, 2, 2, 3.0),
    Sketcher.Constraint("DistanceY", 1, 2, 1, 1, 18.0),
    Sketcher.Constraint("DistanceY", 3, 2, 3, 1, 8.0),
    Sketcher.Constraint("DistanceY", -1, 1, 0, 2, 84.852814),
])
pad5 = doc.addObject("PartDesign::Pad", "Pad004")
body5.addObject(pad5)
pad5.Profile = sketch6
pad5.Length = 3
body6 = doc.addObject("PartDesign::Body", "Body005")

sketch7 = doc.addObject("Sketcher::SketchObject", "Sketch006")
body6.addObject(sketch7)
sketch7.Placement = App.Placement(App.Vector(-19.696155, 23.472964, 0), App.Rotation(App.Vector(0.766044443, 0.64278761, 0), App.Vector(0, 0, -1), App.Vector(-0.64278761, 0.766044443, 0), "ZXY"))
sketch7.addGeometry([
    Part.LineSegment(App.Vector(25.7, 0, 0), App.Vector(25.7, 66, 0)),
    Part.LineSegment(App.Vector(25.7, 66, 0), App.Vector(-9.3, 66, 0)),
    Part.LineSegment(App.Vector(-9.3, 66, 0), App.Vector(-9.3, 63, 0)),
    Part.LineSegment(App.Vector(-9.3, 63, 0), App.Vector(-32.3, 63, 0)),
    Part.LineSegment(App.Vector(-32.3, 63, 0), App.Vector(-32.3, 3, 0)),
    Part.LineSegment(App.Vector(-32.3, 3, 0), App.Vector(-9.3, 3, 0)),
    Part.LineSegment(App.Vector(-9.3, 3, 0), App.Vector(-9.3, 0, 0)),
    Part.LineSegment(App.Vector(-9.3, 0, 0), App.Vector(25.7, 0, 0)),
], False)
sketch7.addConstraint([
    Sketcher.Constraint("Coincident", 0, 2, 1, 1),
    Sketcher.Constraint("Coincident", 1, 2, 2, 1),
    Sketcher.Constraint("Coincident", 2, 2, 3, 1),
    Sketcher.Constraint("Coincident", 3, 2, 4, 1),
    Sketcher.Constraint("Coincident", 4, 2, 5, 1),
    Sketcher.Constraint("Coincident", 5, 2, 6, 1),
    Sketcher.Constraint("Coincident", 6, 2, 7, 1),
    Sketcher.Constraint("Coincident", 7, 2, 0, 1),
    Sketcher.Constraint("Vertical", 0),
    Sketcher.Constraint("Horizontal", 1),
    Sketcher.Constraint("Vertical", 2),
    Sketcher.Constraint("Horizontal", 3),
    Sketcher.Constraint("Vertical", 4),
    Sketcher.Constraint("Horizontal", 5),
    Sketcher.Constraint("Vertical", 6),
    Sketcher.Constraint("Horizontal", 7),
    Sketcher.Constraint("PointOnObject", 6, 2, -1),
    Sketcher.Constraint("Vertical", 2, 2, 5, 2),
    Sketcher.Constraint("Equal", 2, 6),
    Sketcher.Constraint("DistanceX", 1, 2, 1, 1, 35.0),
    Sketcher.Constraint("DistanceX", 3, 2, 3, 1, 23.0),
    Sketcher.Constraint("DistanceY", 0, 1, 0, 2, 66.0),
    Sketcher.Constraint("DistanceY", 2, 2, 2, 1, 3.0),
    Sketcher.Constraint("DistanceX", -1, 1, 0, 2, 25.711504),
])
pad6 = doc.addObject("PartDesign::Pad", "Pad005")
body6.addObject(pad6)
pad6.Profile = sketch7
pad6.Length = 3
body7 = doc.addObject("PartDesign::Body", "Body006")

sketch8 = doc.addObject("Sketcher::SketchObject", "Sketch007")
body7.addObject(sketch8)
sketch8.AttachmentSupport = (doc.getObject("YZ_Plane006"), [""])
sketch8.MapMode = "FlatFace"
sketch8.AttachmentOffset = App.Placement(App.Vector(0, 0, -60), App.Rotation())
sketch8.addGeometry([
    Part.LineSegment(App.Vector(120, -3, 0), App.Vector(120, 0, 0)),
    Part.LineSegment(App.Vector(120, 0, 0), App.Vector(111, 0, 0)),
    Part.LineSegment(App.Vector(111, 0, 0), App.Vector(111, 5, 0)),
    Part.LineSegment(App.Vector(111, 5, 0), App.Vector(130, 5, 0)),
    Part.LineSegment(App.Vector(130, 5, 0), App.Vector(130, -3, 0)),
    Part.LineSegment(App.Vector(130, -3, 0), App.Vector(147.3, -3, 0)),
    Part.LineSegment(App.Vector(147.3, -3, 0), App.Vector(177.3, -33, 0)),
    Part.LineSegment(App.Vector(177.3, -33, 0), App.Vector(147.3, -63, 0)),
    Part.LineSegment(App.Vector(147.3, -63, 0), App.Vector(130, -63, 0)),
    Part.LineSegment(App.Vector(130, -63, 0), App.Vector(130, -71, 0)),
    Part.LineSegment(App.Vector(130, -71, 0), App.Vector(111, -71, 0)),
    Part.LineSegment(App.Vector(111, -71, 0), App.Vector(111, -66, 0)),
    Part.LineSegment(App.Vector(111, -66, 0), App.Vector(120, -66, 0)),
    Part.LineSegment(App.Vector(120, -66, 0), App.Vector(120, -63, 0)),
    Part.LineSegment(App.Vector(120, -63, 0), App.Vector(70, -63, 0)),
    Part.LineSegment(App.Vector(70, -63, 0), App.Vector(70, -71, 0)),
    Part.LineSegment(App.Vector(70, -71, 0), App.Vector(51, -71, 0)),
    Part.LineSegment(App.Vector(51, -71, 0), App.Vector(51, -66, 0)),
    Part.LineSegment(App.Vector(51, -66, 0), App.Vector(60, -66, 0)),
    Part.LineSegment(App.Vector(60, -66, 0), App.Vector(60, -63, 0)),
    Part.LineSegment(App.Vector(60, -63, 0), App.Vector(40, -63, 0)),
    Part.LineSegment(App.Vector(40, -63, 0), App.Vector(40, -3, 0)),
    Part.LineSegment(App.Vector(40, -3, 0), App.Vector(60, -3, 0)),
    Part.LineSegment(App.Vector(60, -3, 0), App.Vector(60, 0, 0)),
    Part.LineSegment(App.Vector(60, 0, 0), App.Vector(51, 0, 0)),
    Part.LineSegment(App.Vector(51, 0, 0), App.Vector(51, 5, 0)),
    Part.LineSegment(App.Vector(51, 5, 0), App.Vector(70, 5, 0)),
    Part.LineSegment(App.Vector(70, 5, 0), App.Vector(70, -3, 0)),
    Part.LineSegment(App.Vector(70, -3, 0), App.Vector(120, -3, 0)),
    Part.Circle(App.Vector(107.3, -33, 0), App.Vector(0, 0, 1), 7.5),
    Part.Circle(App.Vector(137.3, -33, 0), App.Vector(0, 0, 1), 7.5),
], False)
sketch8.addConstraint([
    Sketcher.Constraint("Coincident", 0, 2, 1, 1),
    Sketcher.Constraint("Coincident", 1, 2, 2, 1),
    Sketcher.Constraint("Coincident", 2, 2, 3, 1),
    Sketcher.Constraint("Coincident", 3, 2, 4, 1),
    Sketcher.Constraint("Coincident", 4, 2, 5, 1),
    Sketcher.Constraint("Coincident", 5, 2, 6, 1),
    Sketcher.Constraint("Coincident", 6, 2, 7, 1),
    Sketcher.Constraint("Coincident", 7, 2, 8, 1),
    Sketcher.Constraint("Coincident", 8, 2, 9, 1),
    Sketcher.Constraint("Coincident", 9, 2, 10, 1),
    Sketcher.Constraint("Coincident", 10, 2, 11, 1),
    Sketcher.Constraint("Coincident", 11, 2, 12, 1),
    Sketcher.Constraint("Coincident", 12, 2, 13, 1),
    Sketcher.Constraint("Coincident", 13, 2, 14, 1),
    Sketcher.Constraint("Coincident", 14, 2, 15, 1),
    Sketcher.Constraint("Coincident", 15, 2, 16, 1),
    Sketcher.Constraint("Coincident", 16, 2, 17, 1),
    Sketcher.Constraint("Coincident", 17, 2, 18, 1),
    Sketcher.Constraint("Coincident", 18, 2, 19, 1),
    Sketcher.Constraint("Coincident", 19, 2, 20, 1),
    Sketcher.Constraint("Coincident", 20, 2, 21, 1),
    Sketcher.Constraint("Coincident", 21, 2, 22, 1),
    Sketcher.Constraint("Coincident", 22, 2, 23, 1),
    Sketcher.Constraint("Coincident", 23, 2, 24, 1),
    Sketcher.Constraint("Coincident", 24, 2, 25, 1),
    Sketcher.Constraint("Coincident", 25, 2, 26, 1),
    Sketcher.Constraint("Coincident", 26, 2, 27, 1),
    Sketcher.Constraint("Coincident", 27, 2, 28, 1),
    Sketcher.Constraint("Coincident", 28, 2, 0, 1),
    Sketcher.Constraint("Vertical", 0),
    Sketcher.Constraint("Horizontal", 1),
    Sketcher.Constraint("Vertical", 2),
    Sketcher.Constraint("Horizontal", 3),
    Sketcher.Constraint("Vertical", 4),
    Sketcher.Constraint("Horizontal", 5),
    Sketcher.Constraint("Horizontal", 8),
    Sketcher.Constraint("Vertical", 9),
    Sketcher.Constraint("Horizontal", 10),
    Sketcher.Constraint("Vertical", 11),
    Sketcher.Constraint("Horizontal", 12),
    Sketcher.Constraint("Vertical", 13),
    Sketcher.Constraint("Horizontal", 14),
    Sketcher.Constraint("Vertical", 15),
    Sketcher.Constraint("Horizontal", 16),
    Sketcher.Constraint("Vertical", 17),
    Sketcher.Constraint("Horizontal", 18),
    Sketcher.Constraint("Vertical", 19),
    Sketcher.Constraint("Horizontal", 20),
    Sketcher.Constraint("Vertical", 21),
    Sketcher.Constraint("Horizontal", 22),
    Sketcher.Constraint("Vertical", 23),
    Sketcher.Constraint("Horizontal", 24),
    Sketcher.Constraint("Vertical", 25),
    Sketcher.Constraint("Horizontal", 26),
    Sketcher.Constraint("Vertical", 27),
    Sketcher.Constraint("Horizontal", 28),
    Sketcher.Constraint("Equal", 29, 30),
    Sketcher.Constraint("PointOnObject", 0, 2, -1),
    Sketcher.Constraint("PointOnObject", 23, 2, -1),
    Sketcher.Constraint("Perpendicular", 6, 7),
    Sketcher.Constraint("Horizontal", 29, 3, 30, 3),
    Sketcher.Constraint("Horizontal", 30, 3, 6, 2),
    Sketcher.Constraint("Horizontal", 8, 2, 13, 2),
    Sketcher.Constraint("Horizontal", 10, 2, 15, 2),
    Sketcher.Constraint("Horizontal", 12, 2, 17, 2),
    Sketcher.Constraint("Horizontal", 14, 2, 19, 2),
    Sketcher.Constraint("Horizontal", 5, 2, 21, 2),
    Sketcher.Constraint("Horizontal", 3, 2, 25, 2),
    Sketcher.Constraint("Horizontal", 22, 2, 27, 2),
    Sketcher.Constraint("Vertical", 5, 2, 7, 2),
    Sketcher.Constraint("Vertical", 4, 2, 8, 2),
    Sketcher.Constraint("Vertical", 2, 2, 10, 2),
    Sketcher.Constraint("Vertical", 0, 2, 12, 2),
    Sketcher.Constraint("Vertical", 19, 2, 22, 2),
    Sketcher.Constraint("Vertical", 17, 2, 24, 2),
    Sketcher.Constraint("Vertical", 15, 2, 26, 2),
    Sketcher.Constraint("Equal", 10, 16),
    Sketcher.Constraint("Equal", 12, 18),
    Sketcher.Constraint("Equal", 4, 9),
    Sketcher.Constraint("Equal", 2, 11),
    Sketcher.Constraint("Equal", 6, 7),
    Sketcher.Constraint("Diameter", 29, 15.0),
    Sketcher.Constraint("DistanceX", 1, 2, 1, 1, 9.0),
    Sketcher.Constraint("DistanceX", 3, 1, 3, 2, 19.0),
    Sketcher.Constraint("DistanceX", 14, 2, 14, 1, 50.0),
    Sketcher.Constraint("DistanceX", 20, 2, 20, 1, 20.0),
    Sketcher.Constraint("DistanceY", 0, 1, 0, 2, 3.0),
    Sketcher.Constraint("DistanceY", 2, 1, 2, 2, 5.0),
    Sketcher.Constraint("DistanceY", 21, 1, 21, 2, 60.0),
    Sketcher.Constraint("DistanceX", 5, 1, 5, 2, 17.3),
    Sketcher.Constraint("DistanceX", -1, 1, 0, 2, 120.0),
    Sketcher.Constraint("DistanceX", 29, 3, 30, 3, 30.0),
    Sketcher.Constraint("DistanceX", 30, 3, 5, 2, 10.0),
])
pad7 = doc.addObject("PartDesign::Pad", "Pad006")
body7.addObject(pad7)
pad7.Profile = sketch8
pad7.Length = 3
pad7.Reversed = True
body8 = doc.addObject("PartDesign::Body", "Body007")

sketch9 = doc.addObject("Sketcher::SketchObject", "Sketch008")
body8.addObject(sketch9)
sketch9.Placement = App.Placement(App.Vector(0, 70, 70), App.Rotation(App.Vector(-1, 0, 0), App.Vector(0, -0.707106781, 0.707106781), App.Vector(0, 0.707106781, 0.707106781), "ZXY"))
sketch9.addGeometry([
    Part.LineSegment(App.Vector(45, -148.7, 0), App.Vector(60, -148.7, 0)),
    Part.LineSegment(App.Vector(60, -148.7, 0), App.Vector(60, -96.7, 0)),
    Part.LineSegment(App.Vector(60, -96.7, 0), App.Vector(0, -96.7, 0)),
    Part.LineSegment(App.Vector(0, -96.7, 0), App.Vector(0, -148.7, 0)),
    Part.LineSegment(App.Vector(0, -148.7, 0), App.Vector(15, -148.7, 0)),
    Part.LineSegment(App.Vector(15, -148.7, 0), App.Vector(15, -145.7, 0)),
    Part.LineSegment(App.Vector(15, -145.7, 0), App.Vector(45, -145.7, 0)),
    Part.LineSegment(App.Vector(45, -145.7, 0), App.Vector(45, -148.7, 0)),
    Part.LineSegment(App.Vector(15, -106.3, 0), App.Vector(15, -99, 0)),
    Part.LineSegment(App.Vector(15, -99, 0), App.Vector(35, -99, 0)),
    Part.LineSegment(App.Vector(35, -99, 0), App.Vector(35, -106.3, 0)),
    Part.LineSegment(App.Vector(35, -106.3, 0), App.Vector(15, -106.3, 0)),
], False)
sketch9.addConstraint([
    Sketcher.Constraint("Coincident", 0, 2, 1, 1),
    Sketcher.Constraint("Coincident", 1, 2, 2, 1),
    Sketcher.Constraint("Coincident", 2, 2, 3, 1),
    Sketcher.Constraint("Coincident", 3, 2, 4, 1),
    Sketcher.Constraint("Coincident", 4, 2, 5, 1),
    Sketcher.Constraint("Coincident", 5, 2, 6, 1),
    Sketcher.Constraint("Coincident", 6, 2, 7, 1),
    Sketcher.Constraint("Coincident", 7, 2, 0, 1),
    Sketcher.Constraint("Coincident", 8, 2, 9, 1),
    Sketcher.Constraint("Coincident", 9, 2, 10, 1),
    Sketcher.Constraint("Coincident", 10, 2, 11, 1),
    Sketcher.Constraint("Coincident", 11, 2, 8, 1),
    Sketcher.Constraint("Horizontal", 0),
    Sketcher.Constraint("Vertical", 1),
    Sketcher.Constraint("Horizontal", 2),
    Sketcher.Constraint("Vertical", 3),
    Sketcher.Constraint("Horizontal", 4),
    Sketcher.Constraint("Vertical", 5),
    Sketcher.Constraint("Horizontal", 6),
    Sketcher.Constraint("Vertical", 7),
    Sketcher.Constraint("Vertical", 8),
    Sketcher.Constraint("Horizontal", 9),
    Sketcher.Constraint("Vertical", 10),
    Sketcher.Constraint("Horizontal", 11),
    Sketcher.Constraint("PointOnObject", 2, 2, -2),
    Sketcher.Constraint("Horizontal", 0, 2, 3, 2),
    Sketcher.Constraint("Vertical", 5, 2, 8, 2),
    Sketcher.Constraint("Equal", 0, 4),
    Sketcher.Constraint("DistanceX", 0, 1, 0, 2, 15.0),
    Sketcher.Constraint("DistanceX", 2, 2, 2, 1, 60.0),
    Sketcher.Constraint("DistanceX", 9, 1, 9, 2, 20.0),
    Sketcher.Constraint("DistanceY", 1, 1, 1, 2, 52.0),
    Sketcher.Constraint("DistanceY", 5, 1, 5, 2, 3.0),
    Sketcher.Constraint("DistanceY", 8, 1, 8, 2, 7.3),
    Sketcher.Constraint("DistanceY", 8, 2, -1, 1, 98.994949),
    Sketcher.Constraint("DistanceY", 0, 2, -1, 1, 148.704556),
])
pad8 = doc.addObject("PartDesign::Pad", "Pad007")
body8.addObject(pad8)
pad8.Profile = sketch9
pad8.Length = 3
body9 = doc.addObject("PartDesign::Body", "Body008")

sketch10 = doc.addObject("Sketcher::SketchObject", "Sketch009")
body9.addObject(sketch10)
sketch10.Placement = App.Placement(App.Vector(0, 103, -103), App.Rotation(App.Vector(-1, 0, 0), App.Vector(0, 0.707106781, 0.707106781), App.Vector(0, 0.707106781, -0.707106781), "ZXY"))
sketch10.addGeometry([
    Part.LineSegment(App.Vector(45, 102, 0), App.Vector(15, 102, 0)),
    Part.LineSegment(App.Vector(15, 102, 0), App.Vector(15, 99, 0)),
    Part.LineSegment(App.Vector(15, 99, 0), App.Vector(0, 99, 0)),
    Part.LineSegment(App.Vector(0, 99, 0), App.Vector(0, 50, 0)),
    Part.LineSegment(App.Vector(0, 50, 0), App.Vector(60, 50, 0)),
    Part.LineSegment(App.Vector(60, 50, 0), App.Vector(60, 99, 0)),
    Part.LineSegment(App.Vector(60, 99, 0), App.Vector(45, 99, 0)),
    Part.LineSegment(App.Vector(45, 99, 0), App.Vector(45, 102, 0)),
    Part.LineSegment(App.Vector(15, 52.3, 0), App.Vector(15, 59.6, 0)),
    Part.LineSegment(App.Vector(15, 59.6, 0), App.Vector(35, 59.6, 0)),
    Part.LineSegment(App.Vector(35, 59.6, 0), App.Vector(35, 52.3, 0)),
    Part.LineSegment(App.Vector(35, 52.3, 0), App.Vector(15, 52.3, 0)),
], False)
sketch10.addConstraint([
    Sketcher.Constraint("Coincident", 0, 2, 1, 1),
    Sketcher.Constraint("Coincident", 1, 2, 2, 1),
    Sketcher.Constraint("Coincident", 2, 2, 3, 1),
    Sketcher.Constraint("Coincident", 3, 2, 4, 1),
    Sketcher.Constraint("Coincident", 4, 2, 5, 1),
    Sketcher.Constraint("Coincident", 5, 2, 6, 1),
    Sketcher.Constraint("Coincident", 6, 2, 7, 1),
    Sketcher.Constraint("Coincident", 7, 2, 0, 1),
    Sketcher.Constraint("Coincident", 8, 2, 9, 1),
    Sketcher.Constraint("Coincident", 9, 2, 10, 1),
    Sketcher.Constraint("Coincident", 10, 2, 11, 1),
    Sketcher.Constraint("Coincident", 11, 2, 8, 1),
    Sketcher.Constraint("Horizontal", 0),
    Sketcher.Constraint("Vertical", 1),
    Sketcher.Constraint("Horizontal", 2),
    Sketcher.Constraint("Vertical", 3),
    Sketcher.Constraint("Horizontal", 4),
    Sketcher.Constraint("Vertical", 5),
    Sketcher.Constraint("Horizontal", 6),
    Sketcher.Constraint("Vertical", 7),
    Sketcher.Constraint("Vertical", 8),
    Sketcher.Constraint("Horizontal", 9),
    Sketcher.Constraint("Vertical", 10),
    Sketcher.Constraint("Horizontal", 11),
    Sketcher.Constraint("PointOnObject", 2, 2, -2),
    Sketcher.Constraint("Horizontal", 2, 2, 5, 2),
    Sketcher.Constraint("Vertical", 1, 2, 8, 2),
    Sketcher.Constraint("Equal", 2, 6),
    Sketcher.Constraint("DistanceX", 0, 2, 0, 1, 30.0),
    Sketcher.Constraint("DistanceX", 2, 2, 2, 1, 15.0),
    Sketcher.Constraint("DistanceX", 9, 1, 9, 2, 20.0),
    Sketcher.Constraint("DistanceY", 1, 2, 1, 1, 3.0),
    Sketcher.Constraint("DistanceY", 3, 2, 3, 1, 49.0),
    Sketcher.Constraint("DistanceY", 8, 1, 8, 2, 7.3),
    Sketcher.Constraint("DistanceY", -1, 1, 8, 2, 59.625902),
    Sketcher.Constraint("DistanceY", -1, 1, 0, 2, 101.994949),
])
pad9 = doc.addObject("PartDesign::Pad", "Pad008")
body9.addObject(pad9)
pad9.Profile = sketch10
pad9.Length = 3

doc.recompute()
